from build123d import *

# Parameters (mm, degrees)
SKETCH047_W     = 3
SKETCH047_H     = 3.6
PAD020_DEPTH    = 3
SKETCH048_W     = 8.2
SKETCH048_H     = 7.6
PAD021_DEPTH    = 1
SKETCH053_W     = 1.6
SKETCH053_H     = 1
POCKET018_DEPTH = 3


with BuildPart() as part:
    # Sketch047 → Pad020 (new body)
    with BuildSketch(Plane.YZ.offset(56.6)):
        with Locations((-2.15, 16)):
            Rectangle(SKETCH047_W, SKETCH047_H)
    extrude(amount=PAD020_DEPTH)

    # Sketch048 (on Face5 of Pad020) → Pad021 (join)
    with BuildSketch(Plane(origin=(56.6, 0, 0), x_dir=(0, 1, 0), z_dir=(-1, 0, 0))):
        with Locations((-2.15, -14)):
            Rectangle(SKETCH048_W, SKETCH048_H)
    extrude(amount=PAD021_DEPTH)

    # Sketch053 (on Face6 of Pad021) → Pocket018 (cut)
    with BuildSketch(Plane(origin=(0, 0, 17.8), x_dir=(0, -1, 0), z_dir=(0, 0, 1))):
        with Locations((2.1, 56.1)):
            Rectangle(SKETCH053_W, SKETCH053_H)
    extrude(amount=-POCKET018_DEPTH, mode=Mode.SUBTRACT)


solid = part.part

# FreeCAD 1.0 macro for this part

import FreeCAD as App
import Part
import Sketcher

V = App.Vector
Q = App.Units.Quantity


def add_polygon(sketch, points):
    """Adds a closed chain of lines whose ends are joined by coincident constraints."""
    first, n = sketch.GeometryCount, len(points)
    for a, b in zip(points, points[1:] + points[:1]):
        sketch.addGeometry(Part.LineSegment(App.Vector(*a, 0), App.Vector(*b, 0)), False)
    for i in range(n):
        sketch.addConstraint(Sketcher.Constraint("Coincident", first + i, 2, first + (i + 1) % n, 1))

doc = App.newDocument("Part")
body = doc.addObject("PartDesign::Body", "Body")

# Sketch on YZ plane
sketch1 = doc.addObject("Sketcher::SketchObject", "Sketch")
body.addObject(sketch1)
sketch1.AttachmentSupport = (doc.YZ_Plane, [""])
sketch1.MapMode = "FlatFace"
sketch1.AttachmentOffset = App.Placement(V(0, 0, 56.6), App.Rotation())
add_polygon(sketch1, [(-3.6, 17.8), (-3.6, 14.2), (-0.7, 14.2), (-0.7, 17.8)])  # lines 0-3
sketch1.addConstraint([
    Sketcher.Constraint("Vertical", 0),
    Sketcher.Constraint("Horizontal", 1),
    Sketcher.Constraint("Vertical", 2),
    Sketcher.Constraint("Horizontal", 3),
    Sketcher.Constraint("DistanceX", 1, 1, 1, 2, Q("3 mm")),
    Sketcher.Constraint("DistanceY", 0, 2, 0, 1, Q("3.6 mm")),
    Sketcher.Constraint("DistanceY", -1, 1, 0, 2, Q("14.2 mm")),
    Sketcher.Constraint("DistanceX", 0, 2, -1, 1, Q("3.65 mm")),
])
pad1 = doc.addObject("PartDesign::Pad", "Pad")
body.addObject(pad1)
pad1.Profile = sketch1
pad1.Length = 3

# Sketch on YZ plane
sketch2 = doc.addObject("Sketcher::SketchObject", "Sketch001")
body.addObject(sketch2)
sketch2.AttachmentSupport = (doc.YZ_Plane, [""])
sketch2.MapMode = "FlatFace"
sketch2.AttachmentOffset = App.Placement(V(0, 0, 56.6), App.Rotation())
add_polygon(sketch2, [(-6, 10), (-6, 18), (2, 18), (2, 10)])  # lines 0-3
sketch2.addConstraint([
    Sketcher.Constraint("Vertical", 0),
    Sketcher.Constraint("Horizontal", 1),
    Sketcher.Constraint("Vertical", 2),
    Sketcher.Constraint("Horizontal", 3),
    Sketcher.Constraint("DistanceX", 1, 1, 1, 2, Q("8.2 mm")),
    Sketcher.Constraint("DistanceY", 0, 1, 0, 2, Q("7.6 mm")),
    Sketcher.Constraint("DistanceY", -1, 1, 0, 2, Q("17.8 mm")),
    Sketcher.Constraint("DistanceX", 0, 2, -1, 1, Q("6.25 mm")),
])
pad2 = doc.addObject("PartDesign::Pad", "Pad001")
body.addObject(pad2)
pad2.Profile = sketch2
pad2.Length = 1
pad2.Reversed = True

# Sketch on XY plane
sketch3 = doc.addObject("Sketcher::SketchObject", "Sketch002")
body.addObject(sketch3)
sketch3.AttachmentSupport = (doc.XY_Plane, [""])
sketch3.MapMode = "FlatFace"
sketch3.AttachmentOffset = App.Placement(V(0, 0, 17.8), App.Rotation())
add_polygon(sketch3, [(56.6, -1.3), (55.6, -1.3), (55.6, -2.9), (56.6, -2.9)])  # lines 0-3
sketch3.addConstraint([
    Sketcher.Constraint("Horizontal", 0),
    Sketcher.Constraint("Vertical", 1),
    Sketcher.Constraint("Horizontal", 2),
    Sketcher.Constraint("Vertical", 3),
    Sketcher.Constraint("DistanceX", 0, 2, 0, 1, Q("1 mm")),
    Sketcher.Constraint("DistanceY", 1, 2, 1, 1, Q("1.6 mm")),
    Sketcher.Constraint("DistanceX", -1, 1, 0, 2, Q("55.6 mm")),
    Sketcher.Constraint("DistanceY", 0, 2, -1, 1, Q("1.3 mm")),
])
pocket1 = doc.addObject("PartDesign::Pocket", "Pocket")
body.addObject(pocket1)
pocket1.Profile = sketch3
pocket1.Length = 3

doc.recompute()
